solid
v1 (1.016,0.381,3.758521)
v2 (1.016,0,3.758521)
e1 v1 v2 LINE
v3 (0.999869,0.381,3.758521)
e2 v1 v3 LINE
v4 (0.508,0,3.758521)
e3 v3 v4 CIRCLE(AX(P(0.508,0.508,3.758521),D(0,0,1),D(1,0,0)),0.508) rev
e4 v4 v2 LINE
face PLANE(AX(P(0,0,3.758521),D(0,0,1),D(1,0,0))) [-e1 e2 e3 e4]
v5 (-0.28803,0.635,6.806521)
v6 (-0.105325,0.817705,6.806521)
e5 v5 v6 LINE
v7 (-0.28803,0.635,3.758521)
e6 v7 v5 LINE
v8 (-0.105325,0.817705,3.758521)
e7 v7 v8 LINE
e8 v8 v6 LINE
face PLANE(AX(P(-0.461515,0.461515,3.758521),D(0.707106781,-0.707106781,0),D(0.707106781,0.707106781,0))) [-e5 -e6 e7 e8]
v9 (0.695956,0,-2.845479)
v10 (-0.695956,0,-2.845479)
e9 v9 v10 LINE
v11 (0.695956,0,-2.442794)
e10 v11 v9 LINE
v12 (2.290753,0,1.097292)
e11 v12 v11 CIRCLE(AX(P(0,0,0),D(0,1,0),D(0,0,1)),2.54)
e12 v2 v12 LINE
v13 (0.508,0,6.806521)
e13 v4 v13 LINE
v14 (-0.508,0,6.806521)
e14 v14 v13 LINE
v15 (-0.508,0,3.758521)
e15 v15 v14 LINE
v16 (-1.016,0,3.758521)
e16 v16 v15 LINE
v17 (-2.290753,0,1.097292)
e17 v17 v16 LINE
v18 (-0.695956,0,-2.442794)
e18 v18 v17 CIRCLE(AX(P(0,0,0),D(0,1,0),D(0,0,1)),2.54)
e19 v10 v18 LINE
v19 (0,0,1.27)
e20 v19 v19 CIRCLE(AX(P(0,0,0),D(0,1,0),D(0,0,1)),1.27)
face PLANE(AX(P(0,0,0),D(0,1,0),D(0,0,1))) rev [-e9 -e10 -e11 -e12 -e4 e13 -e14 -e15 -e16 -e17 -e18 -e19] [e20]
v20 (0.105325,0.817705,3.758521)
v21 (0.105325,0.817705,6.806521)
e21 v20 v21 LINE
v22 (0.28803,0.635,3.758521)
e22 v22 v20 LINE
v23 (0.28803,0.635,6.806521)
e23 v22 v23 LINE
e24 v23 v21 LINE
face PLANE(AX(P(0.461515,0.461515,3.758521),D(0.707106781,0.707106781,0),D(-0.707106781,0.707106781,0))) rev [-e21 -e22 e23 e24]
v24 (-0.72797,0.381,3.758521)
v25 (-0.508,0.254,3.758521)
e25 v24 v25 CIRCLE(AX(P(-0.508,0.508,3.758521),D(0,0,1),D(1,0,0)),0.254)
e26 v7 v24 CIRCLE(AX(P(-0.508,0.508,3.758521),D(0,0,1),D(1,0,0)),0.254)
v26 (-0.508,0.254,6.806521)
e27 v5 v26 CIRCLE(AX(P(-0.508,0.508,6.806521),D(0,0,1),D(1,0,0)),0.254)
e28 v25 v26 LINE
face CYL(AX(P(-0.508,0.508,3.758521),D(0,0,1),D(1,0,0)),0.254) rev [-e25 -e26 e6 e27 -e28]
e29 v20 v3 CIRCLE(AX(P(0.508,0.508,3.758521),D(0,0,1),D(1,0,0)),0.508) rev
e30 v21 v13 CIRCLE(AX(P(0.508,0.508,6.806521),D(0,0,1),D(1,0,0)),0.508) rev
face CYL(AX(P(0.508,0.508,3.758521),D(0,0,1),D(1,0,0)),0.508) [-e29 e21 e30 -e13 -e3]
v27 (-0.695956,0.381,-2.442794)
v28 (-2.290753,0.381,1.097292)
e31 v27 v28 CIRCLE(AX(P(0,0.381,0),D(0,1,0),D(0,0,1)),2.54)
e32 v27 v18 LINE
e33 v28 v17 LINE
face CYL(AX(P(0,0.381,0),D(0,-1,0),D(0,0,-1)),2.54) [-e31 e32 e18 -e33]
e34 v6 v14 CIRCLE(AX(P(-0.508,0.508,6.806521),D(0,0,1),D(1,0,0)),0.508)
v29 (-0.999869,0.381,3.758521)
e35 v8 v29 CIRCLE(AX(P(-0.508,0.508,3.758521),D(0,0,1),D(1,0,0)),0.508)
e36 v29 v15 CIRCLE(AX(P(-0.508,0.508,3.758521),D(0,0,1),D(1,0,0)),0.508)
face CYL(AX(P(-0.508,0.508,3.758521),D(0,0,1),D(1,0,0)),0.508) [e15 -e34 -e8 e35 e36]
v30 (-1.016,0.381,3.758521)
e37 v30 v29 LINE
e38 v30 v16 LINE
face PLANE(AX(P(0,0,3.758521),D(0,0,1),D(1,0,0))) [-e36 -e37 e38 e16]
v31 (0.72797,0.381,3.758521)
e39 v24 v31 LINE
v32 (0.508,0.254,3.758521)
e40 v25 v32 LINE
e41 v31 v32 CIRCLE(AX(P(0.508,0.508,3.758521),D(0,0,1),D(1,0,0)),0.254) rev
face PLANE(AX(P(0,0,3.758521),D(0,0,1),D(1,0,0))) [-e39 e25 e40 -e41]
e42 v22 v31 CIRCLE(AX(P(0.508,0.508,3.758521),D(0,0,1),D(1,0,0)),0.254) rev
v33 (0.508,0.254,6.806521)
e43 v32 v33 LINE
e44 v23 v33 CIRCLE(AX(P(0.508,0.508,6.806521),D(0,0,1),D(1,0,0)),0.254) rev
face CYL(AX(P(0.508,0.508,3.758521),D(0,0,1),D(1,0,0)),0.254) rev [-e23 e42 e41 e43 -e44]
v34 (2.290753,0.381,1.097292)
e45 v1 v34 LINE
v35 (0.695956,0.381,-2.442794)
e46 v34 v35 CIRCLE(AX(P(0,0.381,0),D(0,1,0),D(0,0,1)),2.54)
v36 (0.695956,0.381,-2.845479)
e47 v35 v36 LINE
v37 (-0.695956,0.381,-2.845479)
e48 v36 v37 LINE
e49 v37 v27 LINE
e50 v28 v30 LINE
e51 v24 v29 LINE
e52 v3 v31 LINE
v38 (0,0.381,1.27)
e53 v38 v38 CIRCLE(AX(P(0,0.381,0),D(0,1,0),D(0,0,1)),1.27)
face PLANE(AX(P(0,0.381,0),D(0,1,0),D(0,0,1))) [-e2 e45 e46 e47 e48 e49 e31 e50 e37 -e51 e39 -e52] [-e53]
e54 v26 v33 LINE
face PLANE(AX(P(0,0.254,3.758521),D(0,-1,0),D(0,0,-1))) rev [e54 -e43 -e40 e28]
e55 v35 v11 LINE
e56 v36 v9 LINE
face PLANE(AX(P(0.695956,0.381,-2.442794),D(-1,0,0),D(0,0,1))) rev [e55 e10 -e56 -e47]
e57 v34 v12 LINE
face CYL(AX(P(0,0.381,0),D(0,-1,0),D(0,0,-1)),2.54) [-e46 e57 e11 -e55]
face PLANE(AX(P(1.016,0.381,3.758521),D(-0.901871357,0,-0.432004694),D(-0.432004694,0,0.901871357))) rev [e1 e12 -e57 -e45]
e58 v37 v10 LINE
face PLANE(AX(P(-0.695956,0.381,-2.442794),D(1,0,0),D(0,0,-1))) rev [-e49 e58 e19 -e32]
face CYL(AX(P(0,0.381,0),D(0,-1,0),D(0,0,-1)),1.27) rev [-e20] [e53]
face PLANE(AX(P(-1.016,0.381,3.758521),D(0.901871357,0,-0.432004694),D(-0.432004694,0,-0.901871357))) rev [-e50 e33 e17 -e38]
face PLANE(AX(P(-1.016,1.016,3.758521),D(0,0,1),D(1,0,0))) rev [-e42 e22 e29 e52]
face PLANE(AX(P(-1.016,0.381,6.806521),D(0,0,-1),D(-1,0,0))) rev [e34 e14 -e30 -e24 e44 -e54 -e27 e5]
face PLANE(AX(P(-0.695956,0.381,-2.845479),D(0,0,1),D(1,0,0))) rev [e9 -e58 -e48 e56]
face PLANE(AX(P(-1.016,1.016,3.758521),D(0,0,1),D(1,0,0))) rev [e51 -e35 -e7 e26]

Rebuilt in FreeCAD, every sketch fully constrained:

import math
import FreeCAD as App
import Part
import Sketcher
Q = App.Units.Quantity


def add_polygon(sketch, points):
    """Adds a closed chain of lines whose ends are joined by coincident constraints."""
    first, n = sketch.GeometryCount, len(points)
    for a, b in zip(points, points[1:] + points[:1]):
        sketch.addGeometry(Part.LineSegment(App.Vector(*a, 0), App.Vector(*b, 0)), False)
    for i in range(n):
        sketch.addConstraint(Sketcher.Constraint("Coincident", first + i, 2, first + (i + 1) % n, 1))

doc = App.newDocument("Part")
body = doc.addObject("PartDesign::Body", "Body")

sketch1 = body.newObject("Sketcher::SketchObject", "Sketch")
sketch1.AttachmentSupport = (doc.getObject("XZ_Plane"), [""])
sketch1.MapMode = "FlatFace"
sketch1.addGeometry(Part.LineSegment(App.Vector(-0.695956, -2.845479, 0), App.Vector(-0.695956, -2.442794, 0)), False)
sketch1.addGeometry(Part.ArcOfCircle(Part.Circle(App.Vector(0, 0, 0), App.Vector(0, 0, 1), 2.54), math.radians(154.405149), math.radians(254.097654)), False)
sketch1.addGeometry(Part.LineSegment(App.Vector(-2.290753, 1.097292, 0), App.Vector(-1.016, 3.758521, 0)), False)
sketch1.addGeometry(Part.LineSegment(App.Vector(-1.016, 3.758521, 0), App.Vector(-1.016, 6.806521, 0)), False)
sketch1.addGeometry(Part.LineSegment(App.Vector(-1.016, 6.806521, 0), App.Vector(1.016, 6.806521, 0)), False)
sketch1.addGeometry(Part.LineSegment(App.Vector(1.016, 6.806521, 0), App.Vector(1.016, 3.758521, 0)), False)
sketch1.addGeometry(Part.LineSegment(App.Vector(1.016, 3.758521, 0), App.Vector(2.290753, 1.097292, 0)), False)
sketch1.addGeometry(Part.ArcOfCircle(Part.Circle(App.Vector(0, 0, 0), App.Vector(0, 0, 1), 2.54), math.radians(-74.097654), math.radians(25.594851)), False)
sketch1.addGeometry(Part.LineSegment(App.Vector(0.695956, -2.442794, 0), App.Vector(0.695956, -2.845479, 0)), False)
sketch1.addGeometry(Part.LineSegment(App.Vector(0.695956, -2.845479, 0), App.Vector(-0.695956, -2.845479, 0)), False)
sketch1.addGeometry(Part.Circle(App.Vector(0, 0, 0), App.Vector(0, 0, 1), 1.27), False)
sketch1.addConstraint(Sketcher.Constraint("Coincident", 0, 2, 1, 2))
sketch1.addConstraint(Sketcher.Constraint("Tangent", 1, 1, 2, 1))
sketch1.addConstraint(Sketcher.Constraint("Coincident", 2, 2, 3, 1))
sketch1.addConstraint(Sketcher.Constraint("Coincident", 3, 2, 4, 1))
sketch1.addConstraint(Sketcher.Constraint("Coincident", 4, 2, 5, 1))
sketch1.addConstraint(Sketcher.Constraint("Coincident", 5, 2, 6, 1))
sketch1.addConstraint(Sketcher.Constraint("Tangent", 6, 2, 7, 2))
sketch1.addConstraint(Sketcher.Constraint("Coincident", 7, 1, 8, 1))
sketch1.addConstraint(Sketcher.Constraint("Coincident", 8, 2, 9, 1))
sketch1.addConstraint(Sketcher.Constraint("Coincident", 9, 2, 0, 1))
sketch1.addConstraint(Sketcher.Constraint("Vertical", 0))
sketch1.addConstraint(Sketcher.Constraint("Vertical", 3))
sketch1.addConstraint(Sketcher.Constraint("Horizontal", 4))
sketch1.addConstraint(Sketcher.Constraint("Vertical", 5))
sketch1.addConstraint(Sketcher.Constraint("Vertical", 8))
sketch1.addConstraint(Sketcher.Constraint("Horizontal", 9))
sketch1.addConstraint(Sketcher.Constraint("Coincident", 1, 3, -1, 1))
sketch1.addConstraint(Sketcher.Constraint("Coincident", 7, 3, -1, 1))
sketch1.addConstraint(Sketcher.Constraint("Coincident", 10, 3, -1, 1))
sketch1.addConstraint(Sketcher.Constraint("Equal", 1, 7))
sketch1.addConstraint(Sketcher.Constraint("Symmetric", 2, 2, 5, 2, -2))
sketch1.addConstraint(Sketcher.Constraint("Horizontal", 0, 2, 7, 1))
sketch1.addConstraint(Sketcher.Constraint("Diameter", 10, Q("0.1 in")))
sketch1.addConstraint(Sketcher.Constraint("Radius", 1, Q("0.1 in")))
sketch1.addConstraint(Sketcher.Constraint("DistanceX", 4, 1, 4, 2, Q("0.08 in")))
sketch1.addConstraint(Sketcher.Constraint("DistanceY", 3, 1, 3, 2, Q("0.12 in")))
sketch1.addConstraint(Sketcher.Constraint("DistanceX", 0, 2, -1, 1, Q("0.0273999 in")))
sketch1.addConstraint(Sketcher.Constraint("DistanceY", 0, 1, 0, 2, Q("0.402685 mm")))
sketch1.addConstraint(Sketcher.Constraint("DistanceY", -1, 1, 1, 1, Q("1.097292 mm")))
pad1 = body.newObject("PartDesign::Pad", "Pad")
pad1.Profile = sketch1
pad1.Length = Q("0.015 in")
pad1.Reversed = True

sketch2 = body.newObject("Sketcher::SketchObject", "Sketch001")
sketch2.AttachmentSupport = (doc.getObject("XZ_Plane"), [""])
sketch2.MapMode = "FlatFace"
sketch2.AttachmentOffset = App.Placement(App.Vector(0, 0, -0.015 * 25.4), App.Rotation())
add_polygon(sketch2, [(-1.016, 3.758521), (-1.016, 6.806521), (1.016, 6.806521), (1.016, 3.758521)])
sketch2.addConstraint(Sketcher.Constraint("Vertical", 0))
sketch2.addConstraint(Sketcher.Constraint("Horizontal", 1))
sketch2.addConstraint(Sketcher.Constraint("Vertical", 2))
sketch2.addConstraint(Sketcher.Constraint("Horizontal", 3))
sketch2.addConstraint(Sketcher.Constraint("DistanceX", 1, 1, 1, 2, Q("0.08 in")))
sketch2.addConstraint(Sketcher.Constraint("DistanceY", 0, 1, 0, 2, Q("0.12 in")))
sketch2.addConstraint(Sketcher.Constraint("DistanceX", 0, 2, -1, 1, Q("0.04 in")))
sketch2.addConstraint(Sketcher.Constraint("DistanceY", -1, 1, 0, 2, Q("6.806521 mm")))
pad2 = body.newObject("PartDesign::Pad", "Pad001")
pad2.Profile = sketch2
pad2.Length = Q("0.025 in")
pad2.Reversed = True

sketch3 = body.newObject("Sketcher::SketchObject", "Sketch002")
sketch3.AttachmentSupport = (doc.getObject("XY_Plane"), [""])
sketch3.MapMode = "FlatFace"
sketch3.AttachmentOffset = App.Placement(App.Vector(0, 0, 3.758521), App.Rotation())
sketch3.addGeometry(Part.ArcOfCircle(Part.Circle(App.Vector(0.508, 0.508, 0), App.Vector(0, 0, 1), 0.508), math.radians(-90), math.radians(0)), False)
sketch3.addGeometry(Part.LineSegment(App.Vector(0.508, 0, 0), App.Vector(1.016, 0, 0)), False)
sketch3.addGeometry(Part.LineSegment(App.Vector(1.016, 0, 0), App.Vector(1.016, 0.508, 0)), False)
sketch3.addGeometry(Part.ArcOfCircle(Part.Circle(App.Vector(-0.508, 0.508, 0), App.Vector(0, 0, 1), 0.508), math.radians(180), math.radians(270)), False)
sketch3.addGeometry(Part.LineSegment(App.Vector(-1.016, 0.508, 0), App.Vector(-1.016, 0, 0)), False)
sketch3.addGeometry(Part.LineSegment(App.Vector(-1.016, 0, 0), App.Vector(-0.508, 0, 0)), False)
sketch3.addGeometry(Part.ArcOfCircle(Part.Circle(App.Vector(-0.508, 0.508, 0), App.Vector(0, 0, 1), 0.508), math.radians(90), math.radians(180)), False)
sketch3.addGeometry(Part.LineSegment(App.Vector(-0.508, 1.016, 0), App.Vector(-1.016, 1.016, 0)), False)
sketch3.addGeometry(Part.LineSegment(App.Vector(-1.016, 1.016, 0), App.Vector(-1.016, 0.508, 0)), False)
sketch3.addGeometry(Part.ArcOfCircle(Part.Circle(App.Vector(0.508, 0.508, 0), App.Vector(0, 0, 1), 0.508), math.radians(90), math.radians(142.435472)), False)
sketch3.addGeometry(Part.LineSegment(App.Vector(0.508, 1.016, 0), App.Vector(-0.508, 1.016, 0)), False)
sketch3.addGeometry(Part.ArcOfCircle(Part.Circle(App.Vector(-0.508, 0.508, 0), App.Vector(0, 0, 1), 0.508), math.radians(37.564528), math.radians(90)), False)
sketch3.addGeometry(Part.LineSegment(App.Vector(-0.105325, 0.817705, 0), App.Vector(-0.28803, 0.635, 0)), False)
sketch3.addGeometry(Part.ArcOfCircle(Part.Circle(App.Vector(-0.508, 0.508, 0), App.Vector(0, 0, 1), 0.254), math.radians(30), math.radians(270)), False)
sketch3.addGeometry(Part.LineSegment(App.Vector(-0.508, 0.254, 0), App.Vector(0.508, 0.254, 0)), False)
sketch3.addGeometry(Part.ArcOfCircle(Part.Circle(App.Vector(0.508, 0.508, 0), App.Vector(0, 0, 1), 0.254), math.radians(-90), math.radians(150)), False)
sketch3.addGeometry(Part.LineSegment(App.Vector(0.28803, 0.635, 0), App.Vector(0.105325, 0.817705, 0)), False)
sketch3.addGeometry(Part.ArcOfCircle(Part.Circle(App.Vector(0.508, 0.508, 0), App.Vector(0, 0, 1), 0.508), math.radians(0), math.radians(90)), False)
sketch3.addGeometry(Part.LineSegment(App.Vector(1.016, 0.508, 0), App.Vector(1.016, 1.016, 0)), False)
sketch3.addGeometry(Part.LineSegment(App.Vector(1.016, 1.016, 0), App.Vector(0.508, 1.016, 0)), False)
sketch3.addConstraint(Sketcher.Constraint("Tangent", 0, 1, 1, 1))
sketch3.addConstraint(Sketcher.Constraint("Coincident", 1, 2, 2, 1))
sketch3.addConstraint(Sketcher.Constraint("Tangent", 2, 2, 0, 2))
sketch3.addConstraint(Sketcher.Constraint("Tangent", 3, 1, 4, 1))
sketch3.addConstraint(Sketcher.Constraint("Coincident", 4, 2, 5, 1))
sketch3.addConstraint(Sketcher.Constraint("Tangent", 5, 2, 3, 2))
sketch3.addConstraint(Sketcher.Constraint("Tangent", 6, 1, 7, 1))
sketch3.addConstraint(Sketcher.Constraint("Coincident", 7, 2, 8, 1))
sketch3.addConstraint(Sketcher.Constraint("Tangent", 8, 2, 6, 2))
sketch3.addConstraint(Sketcher.Constraint("Tangent", 9, 1, 10, 1))
sketch3.addConstraint(Sketcher.Constraint("Tangent", 10, 2, 11, 2))
sketch3.addConstraint(Sketcher.Constraint("Coincident", 11, 1, 12, 1))
sketch3.addConstraint(Sketcher.Constraint("Coincident", 12, 2, 13, 1))
sketch3.addConstraint(Sketcher.Constraint("Tangent", 13, 2, 14, 1))
sketch3.addConstraint(Sketcher.Constraint("Tangent", 14, 2, 15, 1))
sketch3.addConstraint(Sketcher.Constraint("Coincident", 15, 2, 16, 1))
sketch3.addConstraint(Sketcher.Constraint("Coincident", 16, 2, 9, 2))
sketch3.addConstraint(Sketcher.Constraint("Tangent", 17, 1, 18, 1))
sketch3.addConstraint(Sketcher.Constraint("Coincident", 18, 2, 19, 1))
sketch3.addConstraint(Sketcher.Constraint("Tangent", 19, 2, 17, 2))
sketch3.addConstraint(Sketcher.Constraint("Horizontal", 1))
sketch3.addConstraint(Sketcher.Constraint("Vertical", 2))
sketch3.addConstraint(Sketcher.Constraint("Vertical", 4))
sketch3.addConstraint(Sketcher.Constraint("Horizontal", 5))
sketch3.addConstraint(Sketcher.Constraint("Horizontal", 7))
sketch3.addConstraint(Sketcher.Constraint("Vertical", 8))
sketch3.addConstraint(Sketcher.Constraint("Horizontal", 10))
sketch3.addConstraint(Sketcher.Constraint("Horizontal", 14))
sketch3.addConstraint(Sketcher.Constraint("Vertical", 18))
sketch3.addConstraint(Sketcher.Constraint("Horizontal", 19))
sketch3.addConstraint(Sketcher.Constraint("Coincident", 6, 3, 3, 3))
sketch3.addConstraint(Sketcher.Constraint("Coincident", 9, 3, 0, 3))
sketch3.addConstraint(Sketcher.Constraint("Coincident", 11, 3, 3, 3))
sketch3.addConstraint(Sketcher.Constraint("Coincident", 13, 3, 3, 3))
sketch3.addConstraint(Sketcher.Constraint("Coincident", 15, 3, 0, 3))
sketch3.addConstraint(Sketcher.Constraint("Coincident", 17, 3, 0, 3))
sketch3.addConstraint(Sketcher.Constraint("Equal", 0, 3))
sketch3.addConstraint(Sketcher.Constraint("Equal", 3, 6))
sketch3.addConstraint(Sketcher.Constraint("Equal", 6, 9))
sketch3.addConstraint(Sketcher.Constraint("Equal", 9, 11))
sketch3.addConstraint(Sketcher.Constraint("Equal", 11, 17))
sketch3.addConstraint(Sketcher.Constraint("Symmetric", 1, 2, 4, 2, -1, 1))
sketch3.addConstraint(Sketcher.Constraint("Perpendicular", 12, 16))
sketch3.addConstraint(Sketcher.Constraint("Horizontal", 12, 2, 15, 2))
sketch3.addConstraint(Sketcher.Constraint("Horizontal", 11, 1, 16, 2))
sketch3.addConstraint(Sketcher.Constraint("Radius", 0, Q("0.02 in")))
sketch3.addConstraint(Sketcher.Constraint("Radius", 13, Q("0.01 in")))
sketch3.addConstraint(Sketcher.Constraint("DistanceX", 10, 2, 10, 1, Q("0.04 in")))
sketch3.addConstraint(Sketcher.Constraint("DistanceY", -1, 1, 12, 2, Q("0.025 in")))
pocket1 = body.newObject("PartDesign::Pocket", "Pocket")
pocket1.Profile = sketch3
pocket1.Length = Q("0.12 in")
pocket1.Reversed = True

doc.recompute()
